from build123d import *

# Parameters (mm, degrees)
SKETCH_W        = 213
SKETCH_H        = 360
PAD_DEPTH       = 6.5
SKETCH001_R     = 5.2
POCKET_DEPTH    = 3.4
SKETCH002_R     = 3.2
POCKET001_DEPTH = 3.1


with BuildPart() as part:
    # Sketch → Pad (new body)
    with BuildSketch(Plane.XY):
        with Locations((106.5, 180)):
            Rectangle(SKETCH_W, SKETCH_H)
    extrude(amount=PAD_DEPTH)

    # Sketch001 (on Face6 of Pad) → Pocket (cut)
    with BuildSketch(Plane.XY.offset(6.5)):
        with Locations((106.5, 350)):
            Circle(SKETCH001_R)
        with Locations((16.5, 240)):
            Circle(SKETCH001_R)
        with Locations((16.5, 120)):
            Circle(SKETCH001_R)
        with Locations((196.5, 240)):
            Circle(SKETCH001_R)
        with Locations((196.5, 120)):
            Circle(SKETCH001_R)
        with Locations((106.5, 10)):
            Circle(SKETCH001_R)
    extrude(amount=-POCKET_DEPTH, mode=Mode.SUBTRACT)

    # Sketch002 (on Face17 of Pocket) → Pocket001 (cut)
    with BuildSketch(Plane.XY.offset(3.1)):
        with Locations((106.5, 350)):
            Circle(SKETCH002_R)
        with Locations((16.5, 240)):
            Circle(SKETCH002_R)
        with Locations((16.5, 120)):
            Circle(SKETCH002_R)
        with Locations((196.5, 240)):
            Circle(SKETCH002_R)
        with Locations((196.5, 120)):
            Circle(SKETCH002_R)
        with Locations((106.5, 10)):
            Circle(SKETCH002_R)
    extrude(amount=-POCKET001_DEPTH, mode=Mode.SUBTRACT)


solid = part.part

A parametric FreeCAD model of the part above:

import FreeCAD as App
import Part
import Sketcher
from FreeCAD import Vector
Q = App.Units.Quantity

doc = App.newDocument("Part")
body = doc.addObject("PartDesign::Body", "Body")

# Sketch on XY plane
sketch1 = body.newObject("Sketcher::SketchObject", "Sketch")
sketch1.AttachmentSupport = (doc.getObject("XY_Plane"), [""])
sketch1.MapMode = "FlatFace"
sketch1.addGeometry([
    Part.LineSegment(Vector(0, 360, 0), Vector(0, 0, 0)),
    Part.LineSegment(Vector(0, 0, 0), Vector(213, 0, 0)),
    Part.LineSegment(Vector(213, 0, 0), Vector(213, 360, 0)),
    Part.LineSegment(Vector(213, 360, 0), Vector(0, 360, 0)),
], False)
sketch1.addConstraint([
    Sketcher.Constraint("Coincident", 0, 2, 1, 1),
    Sketcher.Constraint("Coincident", 1, 2, 2, 1),
    Sketcher.Constraint("Coincident", 2, 2, 3, 1),
    Sketcher.Constraint("Coincident", 3, 2, 0, 1),
    Sketcher.Constraint("Vertical", 0),
    Sketcher.Constraint("Horizontal", 1),
    Sketcher.Constraint("Vertical", 2),
    Sketcher.Constraint("Horizontal", 3),
    Sketcher.Constraint("Coincident", 0, 2, -1, 1),
    Sketcher.Constraint("DistanceX", 1, 1, 1, 2, Q("213 mm")),
    Sketcher.Constraint("DistanceY", 0, 2, 0, 1, Q("360 mm")),
])
pad1 = body.newObject("PartDesign::Pad", "Pad")
pad1.Profile = sketch1
pad1.Length = 6.5

# Sketch on XY plane
sketch2 = body.newObject("Sketcher::SketchObject", "Sketch001")
sketch2.AttachmentSupport = (doc.getObject("XY_Plane"), [""])
sketch2.MapMode = "FlatFace"
sketch2.AttachmentOffset = App.Placement(Vector(0, 0, 6.5), App.Rotation())
sketch2.addGeometry([
    Part.Circle(Vector(106, 350, 0), Vector(0, 0, 1), 5),  # 0
    Part.Circle(Vector(16, 240, 0), Vector(0, 0, 1), 5),  # 1
    Part.Circle(Vector(16, 120, 0), Vector(0, 0, 1), 5),  # 2
    Part.Circle(Vector(196, 240, 0), Vector(0, 0, 1), 5),  # 3
    Part.Circle(Vector(196, 120, 0), Vector(0, 0, 1), 5),  # 4
    Part.Circle(Vector(106, 10, 0), Vector(0, 0, 1), 5),  # 5
], False)
sketch2.addConstraint([
    Sketcher.Constraint("Equal", 0, 1),
    Sketcher.Constraint("Equal", 1, 2),
    Sketcher.Constraint("Equal", 2, 3),
    Sketcher.Constraint("Equal", 3, 4),
    Sketcher.Constraint("Equal", 4, 5),
    Sketcher.Constraint("Horizontal", 1, 3, 3, 3),
    Sketcher.Constraint("Horizontal", 2, 3, 4, 3),
    Sketcher.Constraint("Vertical", 1, 3, 2, 3),
    Sketcher.Constraint("Vertical", 3, 3, 4, 3),
    Sketcher.Constraint("Vertical", 0, 3, 5, 3),
    Sketcher.Constraint("Diameter", 0, Q("10.4 mm")),
    Sketcher.Constraint("DistanceY", -1, 1, 0, 3, Q("350 mm")),
    Sketcher.Constraint("DistanceY", -1, 1, 1, 3, Q("240 mm")),
    Sketcher.Constraint("DistanceY", -1, 1, 2, 3, Q("120 mm")),
    Sketcher.Constraint("DistanceY", -1, 1, 5, 3, Q("10 mm")),
    Sketcher.Constraint("DistanceX", 1, 3, 0, 3, Q("90 mm")),
    Sketcher.Constraint("DistanceX", 0, 3, 3, 3, Q("90 mm")),
    Sketcher.Constraint("DistanceX", -1, 1, 0, 3, Q("106.5 mm")),
])
pocket1 = body.newObject("PartDesign::Pocket", "Pocket")
pocket1.Profile = sketch2
pocket1.Length = 3.4

# Sketch on XY plane
sketch3 = body.newObject("Sketcher::SketchObject", "Sketch002")
sketch3.AttachmentSupport = (doc.getObject("XY_Plane"), [""])
sketch3.MapMode = "FlatFace"
sketch3.AttachmentOffset = App.Placement(Vector(0, 0, 3.1), App.Rotation())
sketch3.addGeometry([
    Part.Circle(Vector(106.5, 350, 0), Vector(0, 0, 1), 3.2),  # 0
    Part.Circle(Vector(16.5, 240, 0), Vector(0, 0, 1), 3.2),  # 1
    Part.Circle(Vector(16.5, 120, 0), Vector(0, 0, 1), 3.2),  # 2
    Part.Circle(Vector(196.5, 240, 0), Vector(0, 0, 1), 3.2),  # 3
    Part.Circle(Vector(196.5, 120, 0), Vector(0, 0, 1), 3.2),  # 4
    Part.Circle(Vector(106.5, 10, 0), Vector(0, 0, 1), 3.2),  # 5
], False)
sketch3.addConstraint([
    Sketcher.Constraint("Equal", 0, 1),
    Sketcher.Constraint("Equal", 1, 2),
    Sketcher.Constraint("Equal", 2, 3),
    Sketcher.Constraint("Equal", 3, 4),
    Sketcher.Constraint("Equal", 4, 5),
    Sketcher.Constraint("Horizontal", 1, 3, 3, 3),
    Sketcher.Constraint("Horizontal", 2, 3, 4, 3),
    Sketcher.Constraint("Vertical", 1, 3, 2, 3),
    Sketcher.Constraint("Vertical", 3, 3, 4, 3),
    Sketcher.Constraint("Vertical", 0, 3, 5, 3),
    Sketcher.Constraint("Diameter", 0, Q("6.4 mm")),
    Sketcher.Constraint("DistanceY", -1, 1, 0, 3, Q("350 mm")),
    Sketcher.Constraint("DistanceY", -1, 1, 1, 3, Q("240 mm")),
    Sketcher.Constraint("DistanceY", -1, 1, 2, 3, Q("120 mm")),
    Sketcher.Constraint("DistanceY", -1, 1, 5, 3, Q("10 mm")),
    Sketcher.Constraint("DistanceX", 1, 3, 0, 3, Q("90 mm")),
    Sketcher.Constraint("DistanceX", 0, 3, 3, 3, Q("90 mm")),
    Sketcher.Constraint("DistanceX", -1, 1, 0, 3, Q("106.5 mm")),
])
pocket2 = body.newObject("PartDesign::Pocket", "Pocket001")
pocket2.Profile = sketch3
pocket2.Length = 3.1

doc.recompute()
